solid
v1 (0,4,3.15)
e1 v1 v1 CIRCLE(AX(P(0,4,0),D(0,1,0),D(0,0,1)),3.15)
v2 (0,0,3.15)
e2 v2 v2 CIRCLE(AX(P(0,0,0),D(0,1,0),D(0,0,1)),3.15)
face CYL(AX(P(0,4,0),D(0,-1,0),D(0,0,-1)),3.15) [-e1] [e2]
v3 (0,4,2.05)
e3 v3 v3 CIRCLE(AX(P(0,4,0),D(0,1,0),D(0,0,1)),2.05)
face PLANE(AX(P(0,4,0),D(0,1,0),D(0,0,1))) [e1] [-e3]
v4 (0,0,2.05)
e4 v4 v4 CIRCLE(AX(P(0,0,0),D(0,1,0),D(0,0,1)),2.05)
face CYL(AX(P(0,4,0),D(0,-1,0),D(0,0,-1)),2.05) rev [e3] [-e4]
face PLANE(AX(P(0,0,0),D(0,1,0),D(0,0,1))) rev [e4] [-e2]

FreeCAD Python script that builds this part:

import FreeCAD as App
import Part
import Sketcher

V = App.Vector

doc = App.newDocument("Part")
params = doc.addObject("Spreadsheet::Sheet", "Params")
for row, (alias, value) in enumerate([
    ("sketch1_diameter", "6.3 mm"),
    ("sketch1_diameter2", "4.1 mm"),
    ("pad1_length", "4 mm"),
], start=1):
    params.set(f"A{row}", alias)
    params.set(f"B{row}", "=" + value)
    params.setAlias(f"B{row}", alias)

body = doc.addObject("PartDesign::Body", "Body")

# Sketch on XZ plane
sketch1 = doc.addObject("Sketcher::SketchObject", "Sketch")
body.addObject(sketch1)
sketch1.AttachmentSupport = (doc.XZ_Plane, [""])
sketch1.MapMode = "FlatFace"
sketch1.addGeometry([
    Part.Circle(V(0, 0, 0), V(0, 0, 1), 3.1),
    Part.Circle(V(0, 0, 0), V(0, 0, 1), 2),
], False)
sketch1.addConstraint([
    Sketcher.Constraint("Coincident", 0, 3, -1, 1),
    Sketcher.Constraint("Coincident", 1, 3, -1, 1),
    Sketcher.Constraint("Diameter", 0, 6.3),
    Sketcher.Constraint("Diameter", 1, 4.1),
])
sketch1.setExpression("Constraints[2]", "Params.sketch1_diameter")
sketch1.setExpression("Constraints[3]", "Params.sketch1_diameter2")
pad1 = doc.addObject("PartDesign::Pad", "Pad")
body.addObject(pad1)
pad1.Profile = sketch1
pad1.setExpression("Length", "Params.pad1_length")
pad1.Reversed = True

doc.recompute()
